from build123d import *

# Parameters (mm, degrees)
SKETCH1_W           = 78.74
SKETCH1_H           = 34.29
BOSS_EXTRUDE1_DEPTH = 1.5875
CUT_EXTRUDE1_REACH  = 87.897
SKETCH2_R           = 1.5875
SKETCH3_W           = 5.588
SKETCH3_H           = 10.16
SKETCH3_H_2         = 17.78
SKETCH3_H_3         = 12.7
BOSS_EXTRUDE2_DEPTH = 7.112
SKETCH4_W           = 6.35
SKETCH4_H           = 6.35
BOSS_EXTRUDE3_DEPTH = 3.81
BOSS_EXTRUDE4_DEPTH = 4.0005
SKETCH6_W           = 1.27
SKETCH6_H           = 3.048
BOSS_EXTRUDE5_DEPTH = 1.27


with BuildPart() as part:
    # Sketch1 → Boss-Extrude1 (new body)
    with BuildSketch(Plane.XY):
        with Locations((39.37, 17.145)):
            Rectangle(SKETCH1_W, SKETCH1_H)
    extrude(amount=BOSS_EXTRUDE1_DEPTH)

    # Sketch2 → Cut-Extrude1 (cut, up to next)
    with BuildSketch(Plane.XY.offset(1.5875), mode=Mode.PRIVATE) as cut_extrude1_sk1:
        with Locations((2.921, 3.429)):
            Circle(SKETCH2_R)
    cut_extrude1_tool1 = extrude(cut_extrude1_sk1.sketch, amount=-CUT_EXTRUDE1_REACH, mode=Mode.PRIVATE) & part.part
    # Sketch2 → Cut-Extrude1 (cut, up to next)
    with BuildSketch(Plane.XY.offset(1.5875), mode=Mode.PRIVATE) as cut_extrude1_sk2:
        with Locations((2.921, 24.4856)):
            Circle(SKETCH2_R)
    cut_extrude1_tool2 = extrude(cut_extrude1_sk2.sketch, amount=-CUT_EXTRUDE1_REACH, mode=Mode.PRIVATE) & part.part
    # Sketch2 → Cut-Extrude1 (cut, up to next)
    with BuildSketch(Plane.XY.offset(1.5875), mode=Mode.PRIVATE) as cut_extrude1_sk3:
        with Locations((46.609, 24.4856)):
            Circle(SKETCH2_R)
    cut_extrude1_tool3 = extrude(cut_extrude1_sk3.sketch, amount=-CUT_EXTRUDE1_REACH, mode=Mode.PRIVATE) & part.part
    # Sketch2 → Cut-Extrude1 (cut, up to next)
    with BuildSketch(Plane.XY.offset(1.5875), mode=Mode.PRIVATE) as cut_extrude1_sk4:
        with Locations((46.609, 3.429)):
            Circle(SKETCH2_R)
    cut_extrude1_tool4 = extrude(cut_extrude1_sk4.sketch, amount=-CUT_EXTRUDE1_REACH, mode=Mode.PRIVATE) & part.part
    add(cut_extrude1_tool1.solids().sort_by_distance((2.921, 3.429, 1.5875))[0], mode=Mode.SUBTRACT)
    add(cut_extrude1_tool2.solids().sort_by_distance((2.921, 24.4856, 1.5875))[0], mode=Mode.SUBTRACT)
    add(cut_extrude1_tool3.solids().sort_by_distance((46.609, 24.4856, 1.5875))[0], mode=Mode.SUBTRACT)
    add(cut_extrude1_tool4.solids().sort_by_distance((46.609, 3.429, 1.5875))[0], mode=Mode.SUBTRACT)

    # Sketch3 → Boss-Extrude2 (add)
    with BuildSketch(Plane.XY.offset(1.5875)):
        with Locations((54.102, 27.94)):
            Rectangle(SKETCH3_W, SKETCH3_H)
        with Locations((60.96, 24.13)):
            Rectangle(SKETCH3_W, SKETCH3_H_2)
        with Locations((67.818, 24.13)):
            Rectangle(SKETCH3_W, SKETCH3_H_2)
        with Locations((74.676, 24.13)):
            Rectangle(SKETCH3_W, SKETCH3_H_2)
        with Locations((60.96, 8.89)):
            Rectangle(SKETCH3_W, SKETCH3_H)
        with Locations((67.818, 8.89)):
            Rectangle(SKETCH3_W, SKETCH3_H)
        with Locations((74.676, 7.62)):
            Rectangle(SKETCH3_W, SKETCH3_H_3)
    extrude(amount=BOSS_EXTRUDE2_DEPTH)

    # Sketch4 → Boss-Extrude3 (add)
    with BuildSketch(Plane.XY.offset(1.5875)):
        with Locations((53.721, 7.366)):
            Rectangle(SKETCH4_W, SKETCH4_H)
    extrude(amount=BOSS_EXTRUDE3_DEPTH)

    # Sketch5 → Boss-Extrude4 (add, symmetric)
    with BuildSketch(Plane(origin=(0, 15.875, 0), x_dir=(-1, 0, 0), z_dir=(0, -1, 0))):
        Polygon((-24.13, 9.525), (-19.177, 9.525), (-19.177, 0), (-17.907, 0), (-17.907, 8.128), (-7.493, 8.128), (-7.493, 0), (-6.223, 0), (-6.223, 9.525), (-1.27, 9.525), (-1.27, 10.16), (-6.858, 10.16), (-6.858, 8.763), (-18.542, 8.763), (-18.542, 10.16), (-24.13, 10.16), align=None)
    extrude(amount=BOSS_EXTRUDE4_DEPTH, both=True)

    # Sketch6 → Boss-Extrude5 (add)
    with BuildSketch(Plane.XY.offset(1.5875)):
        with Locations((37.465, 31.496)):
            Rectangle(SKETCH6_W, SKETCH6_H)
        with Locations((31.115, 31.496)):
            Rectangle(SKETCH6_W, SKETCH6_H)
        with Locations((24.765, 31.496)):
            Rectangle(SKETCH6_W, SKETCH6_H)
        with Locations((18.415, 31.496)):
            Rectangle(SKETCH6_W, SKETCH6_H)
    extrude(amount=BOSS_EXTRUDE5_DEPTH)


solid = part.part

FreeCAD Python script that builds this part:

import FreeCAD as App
import Part
import Sketcher

V = App.Vector
Q = App.Units.Quantity


def add_polygon(sketch, points):
    """Adds a closed chain of lines whose ends are joined by coincident constraints."""
    first, n = sketch.GeometryCount, len(points)
    for a, b in zip(points, points[1:] + points[:1]):
        sketch.addGeometry(Part.LineSegment(App.Vector(*a, 0), App.Vector(*b, 0)), False)
    for i in range(n):
        sketch.addConstraint(Sketcher.Constraint("Coincident", first + i, 2, first + (i + 1) % n, 1))

doc = App.newDocument("Part")
body = doc.addObject("PartDesign::Body", "Body")

sketch1 = doc.addObject("Sketcher::SketchObject", "Sketch")
body.addObject(sketch1)
sketch1.AttachmentSupport = (doc.XY_Plane, [""])
sketch1.MapMode = "FlatFace"
add_polygon(sketch1, [(0, 34), (0, 0), (79, 0), (79, 34)])
sketch1.addConstraint(Sketcher.Constraint("Vertical", 0))
sketch1.addConstraint(Sketcher.Constraint("Horizontal", 1))
sketch1.addConstraint(Sketcher.Constraint("Vertical", 2))
sketch1.addConstraint(Sketcher.Constraint("Horizontal", 3))
sketch1.addConstraint(Sketcher.Constraint("Coincident", 0, 2, -1, 1))
sketch1.addConstraint(Sketcher.Constraint("DistanceX", 1, 1, 1, 2, Q("3.1 in")))
sketch1.addConstraint(Sketcher.Constraint("DistanceY", 0, 2, 0, 1, Q("1.35 in")))
pad1 = doc.addObject("PartDesign::Pad", "Pad")
body.addObject(pad1)
pad1.Profile = sketch1
pad1.Length = Q("0.0625 in")

sketch2 = doc.addObject("Sketcher::SketchObject", "Sketch001")
body.addObject(sketch2)
sketch2.AttachmentSupport = (doc.XY_Plane, [""])
sketch2.MapMode = "FlatFace"
sketch2.AttachmentOffset = App.Placement(V(0, 0, 0.0625 * 25.4), App.Rotation())
sketch2.addGeometry(Part.Circle(V(2.9, 3.4, 0), V(0, 0, 1), 1.6), False)
sketch2.addConstraint(Sketcher.Constraint("Diameter", 0, Q("0.125 in")))
sketch2.addConstraint(Sketcher.Constraint("DistanceX", -1, 1, 0, 3, Q("0.115 in")))
sketch2.addConstraint(Sketcher.Constraint("DistanceY", -1, 1, 0, 3, Q("0.135 in")))
pocket1 = doc.addObject("PartDesign::Pocket", "Pocket")
body.addObject(pocket1)
pocket1.Profile = sketch2
pocket1.Type = "UpToFirst"

sketch3 = doc.addObject("Sketcher::SketchObject", "Sketch002")
body.addObject(sketch3)
sketch3.AttachmentSupport = (doc.XY_Plane, [""])
sketch3.MapMode = "FlatFace"
sketch3.AttachmentOffset = App.Placement(V(0, 0, 0.0625 * 25.4), App.Rotation())
sketch3.addGeometry(Part.Circle(V(2.9, 24.5, 0), V(0, 0, 1), 1.6), False)
sketch3.addConstraint(Sketcher.Constraint("Diameter", 0, Q("0.125 in")))
sketch3.addConstraint(Sketcher.Constraint("DistanceX", -1, 1, 0, 3, Q("0.115 in")))
sketch3.addConstraint(Sketcher.Constraint("DistanceY", -1, 1, 0, 3, Q("0.964 in")))
pocket2 = doc.addObject("PartDesign::Pocket", "Pocket001")
body.addObject(pocket2)
pocket2.Profile = sketch3
pocket2.Type = "UpToFirst"

sketch4 = doc.addObject("Sketcher::SketchObject", "Sketch003")
body.addObject(sketch4)
sketch4.AttachmentSupport = (doc.XY_Plane, [""])
sketch4.MapMode = "FlatFace"
sketch4.AttachmentOffset = App.Placement(V(0, 0, 0.0625 * 25.4), App.Rotation())
sketch4.addGeometry(Part.Circle(V(46.6, 24.5, 0), V(0, 0, 1), 1.6), False)
sketch4.addConstraint(Sketcher.Constraint("Diameter", 0, Q("0.125 in")))
sketch4.addConstraint(Sketcher.Constraint("DistanceX", -1, 1, 0, 3, Q("1.835 in")))
sketch4.addConstraint(Sketcher.Constraint("DistanceY", -1, 1, 0, 3, Q("0.964 in")))
pocket3 = doc.addObject("PartDesign::Pocket", "Pocket002")
body.addObject(pocket3)
pocket3.Profile = sketch4
pocket3.Type = "UpToFirst"

sketch5 = doc.addObject("Sketcher::SketchObject", "Sketch004")
body.addObject(sketch5)
sketch5.AttachmentSupport = (doc.XY_Plane, [""])
sketch5.MapMode = "FlatFace"
sketch5.AttachmentOffset = App.Placement(V(0, 0, 0.0625 * 25.4), App.Rotation())
sketch5.addGeometry(Part.Circle(V(46.6, 3.4, 0), V(0, 0, 1), 1.6), False)
sketch5.addConstraint(Sketcher.Constraint("Diameter", 0, Q("0.125 in")))
sketch5.addConstraint(Sketcher.Constraint("DistanceX", -1, 1, 0, 3, Q("1.835 in")))
sketch5.addConstraint(Sketcher.Constraint("DistanceY", -1, 1, 0, 3, Q("0.135 in")))
pocket4 = doc.addObject("PartDesign::Pocket", "Pocket003")
body.addObject(pocket4)
pocket4.Profile = sketch5
pocket4.Type = "UpToFirst"

sketch6 = doc.addObject("Sketcher::SketchObject", "Sketch005")
body.addObject(sketch6)
sketch6.AttachmentSupport = (doc.XY_Plane, [""])
sketch6.MapMode = "FlatFace"
sketch6.AttachmentOffset = App.Placement(V(0, 0, 0.0625 * 25.4), App.Rotation())
add_polygon(sketch6, [(51, 33), (51, 23), (57, 23), (57, 33)])
add_polygon(sketch6, [(58, 33), (58, 15), (64, 15), (64, 33)])
add_polygon(sketch6, [(65, 33), (65, 15), (71, 15), (71, 33)])
add_polygon(sketch6, [(72, 33), (72, 15), (77, 15), (77, 33)])
add_polygon(sketch6, [(58, 14), (58, 4), (64, 4), (64, 14)])
add_polygon(sketch6, [(65, 14), (65, 4), (71, 4), (71, 14)])
add_polygon(sketch6, [(72, 14), (72, 1), (77, 1), (77, 14)])
sketch6.addConstraint(Sketcher.Constraint("Vertical", 0))
sketch6.addConstraint(Sketcher.Constraint("Horizontal", 1))
sketch6.addConstraint(Sketcher.Constraint("Vertical", 2))
sketch6.addConstraint(Sketcher.Constraint("Horizontal", 3))
sketch6.addConstraint(Sketcher.Constraint("Vertical", 4))
sketch6.addConstraint(Sketcher.Constraint("Horizontal", 5))
sketch6.addConstraint(Sketcher.Constraint("Vertical", 6))
sketch6.addConstraint(Sketcher.Constraint("Horizontal", 7))
sketch6.addConstraint(Sketcher.Constraint("Vertical", 8))
sketch6.addConstraint(Sketcher.Constraint("Horizontal", 9))
sketch6.addConstraint(Sketcher.Constraint("Vertical", 10))
sketch6.addConstraint(Sketcher.Constraint("Horizontal", 11))
sketch6.addConstraint(Sketcher.Constraint("Vertical", 12))
sketch6.addConstraint(Sketcher.Constraint("Horizontal", 13))
sketch6.addConstraint(Sketcher.Constraint("Vertical", 14))
sketch6.addConstraint(Sketcher.Constraint("Horizontal", 15))
sketch6.addConstraint(Sketcher.Constraint("Vertical", 16))
sketch6.addConstraint(Sketcher.Constraint("Horizontal", 17))
sketch6.addConstraint(Sketcher.Constraint("Vertical", 18))
sketch6.addConstraint(Sketcher.Constraint("Horizontal", 19))
sketch6.addConstraint(Sketcher.Constraint("Vertical", 20))
sketch6.addConstraint(Sketcher.Constraint("Horizontal", 21))
sketch6.addConstraint(Sketcher.Constraint("Vertical", 22))
sketch6.addConstraint(Sketcher.Constraint("Horizontal", 23))
sketch6.addConstraint(Sketcher.Constraint("Vertical", 24))
sketch6.addConstraint(Sketcher.Constraint("Horizontal", 25))
sketch6.addConstraint(Sketcher.Constraint("Vertical", 26))
sketch6.addConstraint(Sketcher.Constraint("Horizontal", 27))
sketch6.addConstraint(Sketcher.Constraint("Horizontal", 3, 2, 6, 2))
sketch6.addConstraint(Sketcher.Constraint("Horizontal", 5, 2, 8, 2))
sketch6.addConstraint(Sketcher.Constraint("Horizontal", 7, 2, 10, 2))
sketch6.addConstraint(Sketcher.Constraint("Horizontal", 9, 2, 12, 2))
sketch6.addConstraint(Sketcher.Constraint("Horizontal", 11, 2, 14, 2))
sketch6.addConstraint(Sketcher.Constraint("Horizontal", 17, 2, 20, 2))
sketch6.addConstraint(Sketcher.Constraint("Horizontal", 19, 2, 22, 2))
sketch6.addConstraint(Sketcher.Constraint("Horizontal", 23, 2, 26, 2))
sketch6.addConstraint(Sketcher.Constraint("Vertical", 7, 2, 16, 2))
sketch6.addConstraint(Sketcher.Constraint("Vertical", 6, 2, 17, 2))
sketch6.addConstraint(Sketcher.Constraint("Vertical", 11, 2, 20, 2))
sketch6.addConstraint(Sketcher.Constraint("Vertical", 10, 2, 21, 2))
sketch6.addConstraint(Sketcher.Constraint("Vertical", 15, 2, 24, 2))
sketch6.addConstraint(Sketcher.Constraint("Vertical", 14, 2, 25, 2))
sketch6.addConstraint(Sketcher.Constraint("Equal", 3, 5))
sketch6.addConstraint(Sketcher.Constraint("Equal", 7, 9))
sketch6.addConstraint(Sketcher.Constraint("Equal", 11, 13))
sketch6.addConstraint(Sketcher.Constraint("Equal", 2, 16))
sketch6.addConstraint(Sketcher.Constraint("DistanceY", 0, 2, 0, 1, Q("0.4 in")))
sketch6.addConstraint(Sketcher.Constraint("DistanceY", 4, 2, 4, 1, Q("0.7 in")))
sketch6.addConstraint(Sketcher.Constraint("DistanceY", 24, 2, 24, 1, Q("0.5 in")))
sketch6.addConstraint(Sketcher.Constraint("DistanceX", 1, 1, 1, 2, Q("0.22 in")))
sketch6.addConstraint(Sketcher.Constraint("DistanceY", -1, 1, 0, 2, Q("0.9 in")))
sketch6.addConstraint(Sketcher.Constraint("DistanceX", -1, 1, 0, 2, Q("2.02 in")))
sketch6.addConstraint(Sketcher.Constraint("DistanceX", -1, 1, 4, 2, Q("2.29 in")))
sketch6.addConstraint(Sketcher.Constraint("DistanceX", -1, 1, 8, 2, Q("2.56 in")))
sketch6.addConstraint(Sketcher.Constraint("DistanceX", -1, 1, 12, 2, Q("2.83 in")))
sketch6.addConstraint(Sketcher.Constraint("DistanceY", -1, 1, 16, 2, Q("0.15 in")))
pad2 = doc.addObject("PartDesign::Pad", "Pad001")
body.addObject(pad2)
pad2.Profile = sketch6
pad2.Length = Q("0.28 in")

sketch7 = doc.addObject("Sketcher::SketchObject", "Sketch006")
body.addObject(sketch7)
sketch7.AttachmentSupport = (doc.XY_Plane, [""])
sketch7.MapMode = "FlatFace"
sketch7.AttachmentOffset = App.Placement(V(0, 0, 0.0625 * 25.4), App.Rotation())
add_polygon(sketch7, [(51, 11), (51, 4), (57, 4), (57, 11)])
sketch7.addConstraint(Sketcher.Constraint("Vertical", 0))
sketch7.addConstraint(Sketcher.Constraint("Horizontal", 1))
sketch7.addConstraint(Sketcher.Constraint("Vertical", 2))
sketch7.addConstraint(Sketcher.Constraint("Horizontal", 3))
sketch7.addConstraint(Sketcher.Constraint("Equal", 3, 0))
sketch7.addConstraint(Sketcher.Constraint("DistanceX", 1, 1, 1, 2, Q("0.25 in")))
sketch7.addConstraint(Sketcher.Constraint("DistanceX", -1, 1, 0, 2, Q("1.99 in")))
sketch7.addConstraint(Sketcher.Constraint("DistanceY", -1, 1, 0, 2, Q("0.165 in")))
pad3 = doc.addObject("PartDesign::Pad", "Pad002")
body.addObject(pad3)
pad3.Profile = sketch7
pad3.Length = Q("0.15 in")

sketch8 = doc.addObject("Sketcher::SketchObject", "Sketch007")
body.addObject(sketch8)
sketch8.AttachmentSupport = (doc.XZ_Plane, [""])
sketch8.MapMode = "FlatFace"
sketch8.AttachmentOffset = App.Placement(V(0, 0, -0.625 * 25.4), App.Rotation())
add_polygon(sketch8, [(24.1, -9.5), (19.2, -9.5), (19.2, 0), (17.9, 0), (17.9, -8.1), (7.5, -8.1), (7.5, 0), (6.2, 0), (6.2, -9.5), (1.3, -9.5), (1.3, -10.2), (6.9, -10.2), (6.9, -8.8), (18.5, -8.8), (18.5, -10.2), (24.1, -10.2)])
sketch8.addConstraint(Sketcher.Constraint("Horizontal", 0))
sketch8.addConstraint(Sketcher.Constraint("Vertical", 1))
sketch8.addConstraint(Sketcher.Constraint("Horizontal", 2))
sketch8.addConstraint(Sketcher.Constraint("Vertical", 3))
sketch8.addConstraint(Sketcher.Constraint("Horizontal", 4))
sketch8.addConstraint(Sketcher.Constraint("Vertical", 5))
sketch8.addConstraint(Sketcher.Constraint("Horizontal", 6))
sketch8.addConstraint(Sketcher.Constraint("Vertical", 7))
sketch8.addConstraint(Sketcher.Constraint("Horizontal", 8))
sketch8.addConstraint(Sketcher.Constraint("Vertical", 9))
sketch8.addConstraint(Sketcher.Constraint("Horizontal", 10))
sketch8.addConstraint(Sketcher.Constraint("Vertical", 11))
sketch8.addConstraint(Sketcher.Constraint("Horizontal", 12))
sketch8.addConstraint(Sketcher.Constraint("Vertical", 13))
sketch8.addConstraint(Sketcher.Constraint("Horizontal", 14))
sketch8.addConstraint(Sketcher.Constraint("Vertical", 15))
sketch8.addConstraint(Sketcher.Constraint("PointOnObject", 1, 2, -1))
sketch8.addConstraint(Sketcher.Constraint("PointOnObject", 5, 2, -1))
sketch8.addConstraint(Sketcher.Constraint("Horizontal", 0, 2, 7, 2))
sketch8.addConstraint(Sketcher.Constraint("Horizontal", 10, 2, 13, 2))
sketch8.addConstraint(Sketcher.Constraint("Equal", 2, 6))
sketch8.addConstraint(Sketcher.Constraint("Equal", 0, 8))
sketch8.addConstraint(Sketcher.Constraint("Equal", 10, 14))
sketch8.addConstraint(Sketcher.Constraint("DistanceX", 2, 2, 2, 1, Q("0.05 in")))
sketch8.addConstraint(Sketcher.Constraint("DistanceX", 4, 2, 4, 1, Q("0.41 in")))
sketch8.addConstraint(Sketcher.Constraint("DistanceX", 10, 1, 10, 2, Q("0.22 in")))
sketch8.addConstraint(Sketcher.Constraint("DistanceX", 12, 1, 12, 2, Q("0.46 in")))
sketch8.addConstraint(Sketcher.Constraint("DistanceY", 3, 2, 3, 1, Q("0.32 in")))
sketch8.addConstraint(Sketcher.Constraint("DistanceY", 9, 2, -1, 1, Q("0.4 in")))
sketch8.addConstraint(Sketcher.Constraint("DistanceY", 1, 1, 1, 2, Q("0.375 in")))
sketch8.addConstraint(Sketcher.Constraint("DistanceY", 11, 1, 11, 2, Q("0.055 in")))
sketch8.addConstraint(Sketcher.Constraint("DistanceX", -1, 1, 8, 2, Q("0.05 in")))
pad4 = doc.addObject("PartDesign::Pad", "Pad003")
body.addObject(pad4)
pad4.Profile = sketch8
pad4.Length = Q("0.315 in")
pad4.Midplane = True

sketch9 = doc.addObject("Sketcher::SketchObject", "Sketch008")
body.addObject(sketch9)
sketch9.AttachmentSupport = (doc.XY_Plane, [""])
sketch9.MapMode = "FlatFace"
sketch9.AttachmentOffset = App.Placement(V(0, 0, 0.0625 * 25.4), App.Rotation())
add_polygon(sketch9, [(36.8, 33), (36.8, 30), (38.1, 30), (38.1, 33)])
add_polygon(sketch9, [(30.5, 33), (30.5, 30), (31.8, 30), (31.8, 33)])
add_polygon(sketch9, [(24.1, 33), (24.1, 30), (25.4, 30), (25.4, 33)])
add_polygon(sketch9, [(17.8, 33), (17.8, 30), (19.1, 30), (19.1, 33)])
sketch9.addConstraint(Sketcher.Constraint("Vertical", 0))
sketch9.addConstraint(Sketcher.Constraint("Horizontal", 1))
sketch9.addConstraint(Sketcher.Constraint("Vertical", 2))
sketch9.addConstraint(Sketcher.Constraint("Horizontal", 3))
sketch9.addConstraint(Sketcher.Constraint("Vertical", 4))
sketch9.addConstraint(Sketcher.Constraint("Horizontal", 5))
sketch9.addConstraint(Sketcher.Constraint("Vertical", 6))
sketch9.addConstraint(Sketcher.Constraint("Horizontal", 7))
sketch9.addConstraint(Sketcher.Constraint("Vertical", 8))
sketch9.addConstraint(Sketcher.Constraint("Horizontal", 9))
sketch9.addConstraint(Sketcher.Constraint("Vertical", 10))
sketch9.addConstraint(Sketcher.Constraint("Horizontal", 11))
sketch9.addConstraint(Sketcher.Constraint("Vertical", 12))
sketch9.addConstraint(Sketcher.Constraint("Horizontal", 13))
sketch9.addConstraint(Sketcher.Constraint("Vertical", 14))
sketch9.addConstraint(Sketcher.Constraint("Horizontal", 15))
sketch9.addConstraint(Sketcher.Constraint("Horizontal", 1, 2, 4, 2))
sketch9.addConstraint(Sketcher.Constraint("Horizontal", 3, 2, 6, 2))
sketch9.addConstraint(Sketcher.Constraint("Horizontal", 5, 2, 8, 2))
sketch9.addConstraint(Sketcher.Constraint("Horizontal", 7, 2, 10, 2))
sketch9.addConstraint(Sketcher.Constraint("Horizontal", 9, 2, 12, 2))
sketch9.addConstraint(Sketcher.Constraint("Horizontal", 11, 2, 14, 2))
sketch9.addConstraint(Sketcher.Constraint("Equal", 3, 5))
sketch9.addConstraint(Sketcher.Constraint("Equal", 7, 9))
sketch9.addConstraint(Sketcher.Constraint("Equal", 11, 13))
sketch9.addConstraint(Sketcher.Constraint("DistanceX", -1, 1, 9, 2, Q("1 in")))
sketch9.addConstraint(Sketcher.Constraint("DistanceX", 1, 1, 1, 2, Q("0.05 in")))
sketch9.addConstraint(Sketcher.Constraint("DistanceY", 0, 2, 0, 1, Q("0.12 in")))
sketch9.addConstraint(Sketcher.Constraint("DistanceX", -1, 1, 1, 2, Q("1.5 in")))
sketch9.addConstraint(Sketcher.Constraint("DistanceY", -1, 1, 2, 2, Q("1.3 in")))
sketch9.addConstraint(Sketcher.Constraint("DistanceX", -1, 1, 4, 2, Q("1.2 in")))
sketch9.addConstraint(Sketcher.Constraint("DistanceX", -1, 1, 12, 2, Q("0.7 in")))
pad5 = doc.addObject("PartDesign::Pad", "Pad004")
body.addObject(pad5)
pad5.Profile = sketch9
pad5.Length = Q("0.05 in")

doc.recompute()
